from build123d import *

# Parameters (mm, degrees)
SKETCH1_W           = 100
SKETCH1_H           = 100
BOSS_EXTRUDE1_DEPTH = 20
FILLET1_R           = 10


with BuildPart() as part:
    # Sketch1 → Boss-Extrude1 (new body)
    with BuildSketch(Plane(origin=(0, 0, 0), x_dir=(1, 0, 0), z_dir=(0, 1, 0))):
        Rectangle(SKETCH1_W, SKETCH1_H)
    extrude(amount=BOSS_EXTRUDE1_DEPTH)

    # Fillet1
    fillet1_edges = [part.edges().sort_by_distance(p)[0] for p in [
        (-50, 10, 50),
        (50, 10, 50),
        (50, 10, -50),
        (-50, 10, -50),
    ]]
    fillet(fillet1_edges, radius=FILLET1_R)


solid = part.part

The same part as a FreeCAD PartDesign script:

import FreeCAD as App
import Part
import Sketcher
from FreeCAD import Vector


def edges_at(feature, points):
    """Names of the edges that pass closest to the given points."""
    edges = feature.Shape.Edges
    near = lambda p: min(range(len(edges)), key=lambda i: edges[i].distToShape(Part.Vertex(*p))[0])
    return sorted({f"Edge{near(p) + 1}" for p in points})

doc = App.newDocument("Part")
body = doc.addObject("PartDesign::Body", "Body")

sketch1 = body.newObject("Sketcher::SketchObject", "Sketch")
sketch1.AttachmentSupport = (doc.getObject("XZ_Plane"), [""])
sketch1.MapMode = "FlatFace"
sketch1.addGeometry([
    Part.LineSegment(Vector(-50, -50, 0), Vector(-50, 50, 0)),
    Part.LineSegment(Vector(-50, 50, 0), Vector(50, 50, 0)),
    Part.LineSegment(Vector(50, 50, 0), Vector(50, -50, 0)),
    Part.LineSegment(Vector(50, -50, 0), Vector(-50, -50, 0)),
], False)
sketch1.addConstraint([
    Sketcher.Constraint("Coincident", 0, 2, 1, 1),
    Sketcher.Constraint("Coincident", 1, 2, 2, 1),
    Sketcher.Constraint("Coincident", 2, 2, 3, 1),
    Sketcher.Constraint("Coincident", 3, 2, 0, 1),
    Sketcher.Constraint("Vertical", 0),
    Sketcher.Constraint("Horizontal", 1),
    Sketcher.Constraint("Vertical", 2),
    Sketcher.Constraint("Horizontal", 3),
    Sketcher.Constraint("Symmetric", 0, 2, 2, 2, -1, 1),
    Sketcher.Constraint("Equal", 3, 0),
    Sketcher.Constraint("DistanceX", 1, 1, 1, 2, 100.0),
])
pad1 = body.newObject("PartDesign::Pad", "Pad")
pad1.Profile = sketch1
pad1.Length = 20
pad1.Reversed = True
doc.recompute()

fillet = body.newObject("PartDesign::Fillet", "Fillet")
fillet.Base = (pad1, edges_at(pad1, [
    (-50, 10, 50),
    (50, 10, 50),
    (50, 10, -50),
    (-50, 10, -50),
]))
fillet.Radius = 10

doc.recompute()
